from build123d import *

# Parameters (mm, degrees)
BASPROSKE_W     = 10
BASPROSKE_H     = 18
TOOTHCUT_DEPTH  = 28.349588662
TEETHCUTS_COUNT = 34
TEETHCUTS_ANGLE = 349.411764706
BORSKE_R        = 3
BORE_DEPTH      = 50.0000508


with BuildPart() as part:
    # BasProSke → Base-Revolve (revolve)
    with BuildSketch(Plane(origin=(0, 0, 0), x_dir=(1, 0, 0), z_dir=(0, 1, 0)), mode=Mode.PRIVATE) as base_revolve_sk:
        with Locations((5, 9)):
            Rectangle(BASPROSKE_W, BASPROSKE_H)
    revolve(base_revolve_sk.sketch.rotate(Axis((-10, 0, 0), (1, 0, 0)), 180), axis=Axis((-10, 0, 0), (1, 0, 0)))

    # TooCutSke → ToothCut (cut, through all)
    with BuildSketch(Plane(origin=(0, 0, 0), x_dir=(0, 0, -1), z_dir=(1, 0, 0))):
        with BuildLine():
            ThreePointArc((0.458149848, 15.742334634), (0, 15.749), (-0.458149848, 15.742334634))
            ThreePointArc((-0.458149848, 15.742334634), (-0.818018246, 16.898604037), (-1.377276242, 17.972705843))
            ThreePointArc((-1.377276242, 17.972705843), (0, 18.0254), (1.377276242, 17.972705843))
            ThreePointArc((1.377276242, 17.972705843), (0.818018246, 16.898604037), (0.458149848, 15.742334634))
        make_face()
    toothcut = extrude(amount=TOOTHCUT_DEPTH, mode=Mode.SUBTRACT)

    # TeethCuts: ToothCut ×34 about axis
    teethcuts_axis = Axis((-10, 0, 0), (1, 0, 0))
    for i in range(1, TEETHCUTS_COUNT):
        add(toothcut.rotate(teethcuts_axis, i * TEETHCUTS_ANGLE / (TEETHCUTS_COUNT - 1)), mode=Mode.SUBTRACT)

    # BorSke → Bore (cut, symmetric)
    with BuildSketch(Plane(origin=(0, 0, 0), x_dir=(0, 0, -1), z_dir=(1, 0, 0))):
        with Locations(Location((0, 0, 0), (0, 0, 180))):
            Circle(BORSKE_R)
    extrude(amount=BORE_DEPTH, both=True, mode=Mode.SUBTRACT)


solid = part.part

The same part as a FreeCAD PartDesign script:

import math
import FreeCAD as App
import Part
import Sketcher
from FreeCAD import Vector

doc = App.newDocument("Part")
body = doc.addObject("PartDesign::Body", "Body")

# Sketch on XZ plane
sketch1 = doc.addObject("Sketcher::SketchObject", "Sketch")
body.addObject(sketch1)
sketch1.AttachmentSupport = (doc.XZ_Plane, [""])
sketch1.MapMode = "FlatFace"
sketch1.addGeometry([
    Part.LineSegment(Vector(0, -18, 0), Vector(0, 0, 0)),
    Part.LineSegment(Vector(0, 0, 0), Vector(10, 0, 0)),
    Part.LineSegment(Vector(10, 0, 0), Vector(10, -18, 0)),
    Part.LineSegment(Vector(10, -18, 0), Vector(0, -18, 0)),
], False)
sketch1.addConstraint([
    Sketcher.Constraint("Coincident", 0, 2, 1, 1),
    Sketcher.Constraint("Coincident", 1, 2, 2, 1),
    Sketcher.Constraint("Coincident", 2, 2, 3, 1),
    Sketcher.Constraint("Coincident", 3, 2, 0, 1),
    Sketcher.Constraint("Vertical", 0),
    Sketcher.Constraint("Horizontal", 1),
    Sketcher.Constraint("Vertical", 2),
    Sketcher.Constraint("Horizontal", 3),
    Sketcher.Constraint("Coincident", 0, 2, -1, 1),
    Sketcher.Constraint("DistanceX", 1, 1, 1, 2, 10.0),
    Sketcher.Constraint("DistanceY", 0, 1, 0, 2, 18.0),
])
revolution = doc.addObject("PartDesign::Revolution", "Revolution")
body.addObject(revolution)
revolution.Profile = sketch1
revolution.ReferenceAxis = (sketch1, ["H_Axis"])
revolution.Angle = 360

# Sketch on YZ plane
sketch2 = doc.addObject("Sketcher::SketchObject", "Sketch001")
body.addObject(sketch2)
sketch2.AttachmentSupport = (doc.YZ_Plane, [""])
sketch2.MapMode = "FlatFace"
sketch2.addGeometry([
    Part.ArcOfCircle(Part.Circle(Vector(-0.000001, 0, 0), Vector(0, 0, 1), 15.749001), math.radians(-1.667011), math.radians(1.667011)),
    Part.ArcOfCircle(Part.Circle(Vector(14.307726, -7.105096, 0), Vector(0, 0, 1), 6.8), math.radians(57.386613), math.radians(77.82069)),
    Part.ArcOfCircle(Part.Circle(Vector(0, 0, 0), Vector(0, 0, 1), 18.0254), math.radians(-4.3821), math.radians(4.3821)),
    Part.ArcOfCircle(Part.Circle(Vector(14.307726, 7.105096, 0), Vector(0, 0, 1), 6.8), math.radians(-77.82069), math.radians(-57.386613)),
], False)
sketch2.addConstraint([
    Sketcher.Constraint("Coincident", 0, 1, 1, 2),
    Sketcher.Constraint("Coincident", 1, 1, 2, 1),
    Sketcher.Constraint("Coincident", 2, 2, 3, 2),
    Sketcher.Constraint("Coincident", 3, 1, 0, 2),
    Sketcher.Constraint("Coincident", 0, 3, -1, 1),
    Sketcher.Constraint("Coincident", 2, 3, -1, 1),
    Sketcher.Constraint("Equal", 1, 3),
    Sketcher.Constraint("Symmetric", 1, 3, 3, 3, -1),
    Sketcher.Constraint("Radius", 1, 6.8),
    Sketcher.Constraint("Radius", 0, 15.749001),
    Sketcher.Constraint("Radius", 2, 18.0254),
    Sketcher.Constraint("DistanceY", 0, 1, 3, 1, 0.9163),
    Sketcher.Constraint("DistanceX", 1, 3, 0, 1, 1.434608),
])
pocket1 = doc.addObject("PartDesign::Pocket", "Pocket")
body.addObject(pocket1)
pocket1.Profile = sketch2
pocket1.Type = "ThroughAll"
pocket1.Reversed = True
doc.recompute()

polarpattern = doc.addObject("PartDesign::PolarPattern", "PolarPattern")
body.addObject(polarpattern)
polarpattern.Originals = [pocket1]
polarpattern.Axis = (doc.X_Axis, [""])
polarpattern.Angle = 360
polarpattern.Occurrences = 34
body.Tip = polarpattern

# Sketch on YZ plane
sketch3 = doc.addObject("Sketcher::SketchObject", "Sketch002")
body.addObject(sketch3)
sketch3.AttachmentSupport = (doc.YZ_Plane, [""])
sketch3.MapMode = "FlatFace"
sketch3.addGeometry(Part.Circle(Vector(0, 0, 0), Vector(0, 0, 1), 3), False)
sketch3.addConstraint([
    Sketcher.Constraint("Coincident", 0, 3, -1, 1),
    Sketcher.Constraint("Diameter", 0, 6.0),
])
pocket2 = doc.addObject("PartDesign::Pocket", "Pocket001")
body.addObject(pocket2)
pocket2.Profile = sketch3
pocket2.Length = 100.000102
pocket2.Midplane = True

doc.recompute()
